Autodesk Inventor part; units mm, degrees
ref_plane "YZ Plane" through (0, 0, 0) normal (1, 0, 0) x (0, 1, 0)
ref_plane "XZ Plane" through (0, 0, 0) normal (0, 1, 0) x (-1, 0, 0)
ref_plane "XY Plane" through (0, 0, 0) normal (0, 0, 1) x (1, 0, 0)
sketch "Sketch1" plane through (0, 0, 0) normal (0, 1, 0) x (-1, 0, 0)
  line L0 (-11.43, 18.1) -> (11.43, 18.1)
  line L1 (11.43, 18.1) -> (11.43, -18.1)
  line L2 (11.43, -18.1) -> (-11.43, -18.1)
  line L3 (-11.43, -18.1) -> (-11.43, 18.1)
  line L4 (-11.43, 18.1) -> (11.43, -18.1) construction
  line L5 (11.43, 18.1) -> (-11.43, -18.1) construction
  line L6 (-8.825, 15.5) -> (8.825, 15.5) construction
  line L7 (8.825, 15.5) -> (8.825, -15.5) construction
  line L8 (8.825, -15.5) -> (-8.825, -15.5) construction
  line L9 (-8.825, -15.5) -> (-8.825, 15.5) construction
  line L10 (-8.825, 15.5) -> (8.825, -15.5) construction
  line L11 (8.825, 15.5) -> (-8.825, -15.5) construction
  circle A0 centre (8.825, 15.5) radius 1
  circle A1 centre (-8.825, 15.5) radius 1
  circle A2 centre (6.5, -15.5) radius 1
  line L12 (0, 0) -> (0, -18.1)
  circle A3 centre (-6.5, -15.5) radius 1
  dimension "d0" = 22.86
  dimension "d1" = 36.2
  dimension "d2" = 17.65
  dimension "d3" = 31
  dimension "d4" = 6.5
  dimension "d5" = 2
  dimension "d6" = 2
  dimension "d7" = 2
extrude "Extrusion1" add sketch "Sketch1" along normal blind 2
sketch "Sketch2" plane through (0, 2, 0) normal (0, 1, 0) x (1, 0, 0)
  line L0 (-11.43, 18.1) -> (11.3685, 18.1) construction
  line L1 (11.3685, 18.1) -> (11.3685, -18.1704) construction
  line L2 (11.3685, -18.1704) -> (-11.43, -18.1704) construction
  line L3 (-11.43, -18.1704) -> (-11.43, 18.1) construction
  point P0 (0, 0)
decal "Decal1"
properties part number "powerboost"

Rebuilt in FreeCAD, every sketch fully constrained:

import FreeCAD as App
import Part
import Sketcher
from FreeCAD import Vector


def add_polygon(sketch, points):
    """Adds a closed chain of lines whose ends are joined by coincident constraints."""
    first, n = sketch.GeometryCount, len(points)
    for a, b in zip(points, points[1:] + points[:1]):
        sketch.addGeometry(Part.LineSegment(App.Vector(*a, 0), App.Vector(*b, 0)), False)
    for i in range(n):
        sketch.addConstraint(Sketcher.Constraint("Coincident", first + i, 2, first + (i + 1) % n, 1))

doc = App.newDocument("Part")
body = doc.addObject("PartDesign::Body", "Body")

# Sketch on XZ plane
sketch1 = body.newObject("Sketcher::SketchObject", "Sketch")
sketch1.AttachmentSupport = (doc.getObject("XZ_Plane"), [""])
sketch1.MapMode = "FlatFace"
add_polygon(sketch1, [(-11.43, 18.1), (11.43, 18.1), (11.43, -18.1), (-11.43, -18.1)])  # lines 0-3
sketch1.addGeometry(Part.Circle(Vector(6.5, -15.5, 0), Vector(0, 0, 1), 1), False)  # 4
sketch1.addGeometry(Part.Circle(Vector(-6.5, -15.5, 0), Vector(0, 0, 1), 1), False)  # 5
sketch1.addGeometry(Part.Circle(Vector(8.825, 15.5, 0), Vector(0, 0, 1), 1), False)  # 6
sketch1.addGeometry(Part.Circle(Vector(-8.825, 15.5, 0), Vector(0, 0, 1), 1), False)  # 7
sketch1.addConstraint(Sketcher.Constraint("Horizontal", 0))
sketch1.addConstraint(Sketcher.Constraint("Vertical", 1))
sketch1.addConstraint(Sketcher.Constraint("Horizontal", 2))
sketch1.addConstraint(Sketcher.Constraint("Vertical", 3))
sketch1.addConstraint(Sketcher.Constraint("Equal", 4, 5))
sketch1.addConstraint(Sketcher.Constraint("Equal", 5, 6))
sketch1.addConstraint(Sketcher.Constraint("Equal", 6, 7))
sketch1.addConstraint(Sketcher.Constraint("Symmetric", 0, 2, 2, 2, -1, 1))
sketch1.addConstraint(Sketcher.Constraint("Symmetric", 4, 3, 5, 3, -2))
sketch1.addConstraint(Sketcher.Constraint("Symmetric", 6, 3, 7, 3, -2))
sketch1.addConstraint(Sketcher.Constraint("Diameter", 4, 2.0))
sketch1.addConstraint(Sketcher.Constraint("DistanceY", 1, 2, 1, 1, 36.2))
sketch1.addConstraint(Sketcher.Constraint("DistanceY", 4, 3, 6, 3, 31.0))
sketch1.addConstraint(Sketcher.Constraint("DistanceX", 0, 1, 0, 2, 22.86))
sketch1.addConstraint(Sketcher.Constraint("DistanceX", -1, 1, 4, 3, 6.5))
sketch1.addConstraint(Sketcher.Constraint("DistanceX", 7, 3, 6, 3, 17.65))
sketch1.addConstraint(Sketcher.Constraint("DistanceY", 4, 3, -1, 1, 15.5))
pad1 = body.newObject("PartDesign::Pad", "Pad")
pad1.Profile = sketch1
pad1.Length = 2
pad1.Reversed = True

doc.recompute()
